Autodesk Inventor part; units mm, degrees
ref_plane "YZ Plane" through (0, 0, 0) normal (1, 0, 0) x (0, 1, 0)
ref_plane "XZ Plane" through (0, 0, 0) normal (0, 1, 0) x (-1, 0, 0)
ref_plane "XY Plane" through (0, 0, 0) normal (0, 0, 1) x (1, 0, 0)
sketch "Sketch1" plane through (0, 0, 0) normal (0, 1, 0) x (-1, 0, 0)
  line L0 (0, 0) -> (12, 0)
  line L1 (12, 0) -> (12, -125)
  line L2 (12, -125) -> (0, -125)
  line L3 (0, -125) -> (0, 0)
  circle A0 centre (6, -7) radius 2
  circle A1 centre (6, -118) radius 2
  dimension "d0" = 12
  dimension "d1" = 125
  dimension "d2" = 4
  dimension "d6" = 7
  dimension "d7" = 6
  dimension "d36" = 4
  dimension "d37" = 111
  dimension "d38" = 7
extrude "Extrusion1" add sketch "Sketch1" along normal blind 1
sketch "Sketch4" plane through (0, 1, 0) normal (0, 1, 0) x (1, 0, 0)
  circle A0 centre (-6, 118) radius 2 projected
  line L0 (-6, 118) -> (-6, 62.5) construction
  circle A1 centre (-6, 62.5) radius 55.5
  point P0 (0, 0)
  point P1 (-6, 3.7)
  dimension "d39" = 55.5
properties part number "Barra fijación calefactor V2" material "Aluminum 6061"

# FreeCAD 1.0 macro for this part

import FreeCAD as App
import Part
import Sketcher
from FreeCAD import Vector

doc = App.newDocument("Part")
body = doc.addObject("PartDesign::Body", "Body")

sketch1 = body.newObject("Sketcher::SketchObject", "Sketch")
sketch1.AttachmentSupport = (doc.getObject("XZ_Plane"), [""])
sketch1.MapMode = "FlatFace"
sketch1.addGeometry(Part.LineSegment(Vector(-12, 0, 0), Vector(0, 0, 0)), False)
sketch1.addGeometry(Part.LineSegment(Vector(0, 0, 0), Vector(0, -125, 0)), False)
sketch1.addGeometry(Part.LineSegment(Vector(0, -125, 0), Vector(-12, -125, 0)), False)
sketch1.addGeometry(Part.LineSegment(Vector(-12, -125, 0), Vector(-12, 0, 0)), False)
sketch1.addGeometry(Part.Circle(Vector(-6, -118, 0), Vector(0, 0, 1), 2), False)
sketch1.addGeometry(Part.Circle(Vector(-6, -7, 0), Vector(0, 0, 1), 2), False)
sketch1.addConstraint(Sketcher.Constraint("Coincident", 0, 2, 1, 1))
sketch1.addConstraint(Sketcher.Constraint("Coincident", 1, 2, 2, 1))
sketch1.addConstraint(Sketcher.Constraint("Coincident", 2, 2, 3, 1))
sketch1.addConstraint(Sketcher.Constraint("Coincident", 3, 2, 0, 1))
sketch1.addConstraint(Sketcher.Constraint("Horizontal", 0))
sketch1.addConstraint(Sketcher.Constraint("Vertical", 1))
sketch1.addConstraint(Sketcher.Constraint("Horizontal", 2))
sketch1.addConstraint(Sketcher.Constraint("Vertical", 3))
sketch1.addConstraint(Sketcher.Constraint("Coincident", 0, 2, -1, 1))
sketch1.addConstraint(Sketcher.Constraint("Equal", 4, 5))
sketch1.addConstraint(Sketcher.Constraint("Vertical", 4, 3, 5, 3))
sketch1.addConstraint(Sketcher.Constraint("Diameter", 4, 4.0))
sketch1.addConstraint(Sketcher.Constraint("DistanceX", 0, 1, 0, 2, 12.0))
sketch1.addConstraint(Sketcher.Constraint("DistanceY", 1, 2, 1, 1, 125.0))
sketch1.addConstraint(Sketcher.Constraint("DistanceX", 4, 3, -1, 1, 6.0))
sketch1.addConstraint(Sketcher.Constraint("DistanceY", 5, 3, -1, 1, 7.0))
sketch1.addConstraint(Sketcher.Constraint("DistanceY", 4, 3, 5, 3, 111.0))
pad1 = body.newObject("PartDesign::Pad", "Pad")
pad1.Profile = sketch1
pad1.Length = 1
pad1.Reversed = True

doc.recompute()
